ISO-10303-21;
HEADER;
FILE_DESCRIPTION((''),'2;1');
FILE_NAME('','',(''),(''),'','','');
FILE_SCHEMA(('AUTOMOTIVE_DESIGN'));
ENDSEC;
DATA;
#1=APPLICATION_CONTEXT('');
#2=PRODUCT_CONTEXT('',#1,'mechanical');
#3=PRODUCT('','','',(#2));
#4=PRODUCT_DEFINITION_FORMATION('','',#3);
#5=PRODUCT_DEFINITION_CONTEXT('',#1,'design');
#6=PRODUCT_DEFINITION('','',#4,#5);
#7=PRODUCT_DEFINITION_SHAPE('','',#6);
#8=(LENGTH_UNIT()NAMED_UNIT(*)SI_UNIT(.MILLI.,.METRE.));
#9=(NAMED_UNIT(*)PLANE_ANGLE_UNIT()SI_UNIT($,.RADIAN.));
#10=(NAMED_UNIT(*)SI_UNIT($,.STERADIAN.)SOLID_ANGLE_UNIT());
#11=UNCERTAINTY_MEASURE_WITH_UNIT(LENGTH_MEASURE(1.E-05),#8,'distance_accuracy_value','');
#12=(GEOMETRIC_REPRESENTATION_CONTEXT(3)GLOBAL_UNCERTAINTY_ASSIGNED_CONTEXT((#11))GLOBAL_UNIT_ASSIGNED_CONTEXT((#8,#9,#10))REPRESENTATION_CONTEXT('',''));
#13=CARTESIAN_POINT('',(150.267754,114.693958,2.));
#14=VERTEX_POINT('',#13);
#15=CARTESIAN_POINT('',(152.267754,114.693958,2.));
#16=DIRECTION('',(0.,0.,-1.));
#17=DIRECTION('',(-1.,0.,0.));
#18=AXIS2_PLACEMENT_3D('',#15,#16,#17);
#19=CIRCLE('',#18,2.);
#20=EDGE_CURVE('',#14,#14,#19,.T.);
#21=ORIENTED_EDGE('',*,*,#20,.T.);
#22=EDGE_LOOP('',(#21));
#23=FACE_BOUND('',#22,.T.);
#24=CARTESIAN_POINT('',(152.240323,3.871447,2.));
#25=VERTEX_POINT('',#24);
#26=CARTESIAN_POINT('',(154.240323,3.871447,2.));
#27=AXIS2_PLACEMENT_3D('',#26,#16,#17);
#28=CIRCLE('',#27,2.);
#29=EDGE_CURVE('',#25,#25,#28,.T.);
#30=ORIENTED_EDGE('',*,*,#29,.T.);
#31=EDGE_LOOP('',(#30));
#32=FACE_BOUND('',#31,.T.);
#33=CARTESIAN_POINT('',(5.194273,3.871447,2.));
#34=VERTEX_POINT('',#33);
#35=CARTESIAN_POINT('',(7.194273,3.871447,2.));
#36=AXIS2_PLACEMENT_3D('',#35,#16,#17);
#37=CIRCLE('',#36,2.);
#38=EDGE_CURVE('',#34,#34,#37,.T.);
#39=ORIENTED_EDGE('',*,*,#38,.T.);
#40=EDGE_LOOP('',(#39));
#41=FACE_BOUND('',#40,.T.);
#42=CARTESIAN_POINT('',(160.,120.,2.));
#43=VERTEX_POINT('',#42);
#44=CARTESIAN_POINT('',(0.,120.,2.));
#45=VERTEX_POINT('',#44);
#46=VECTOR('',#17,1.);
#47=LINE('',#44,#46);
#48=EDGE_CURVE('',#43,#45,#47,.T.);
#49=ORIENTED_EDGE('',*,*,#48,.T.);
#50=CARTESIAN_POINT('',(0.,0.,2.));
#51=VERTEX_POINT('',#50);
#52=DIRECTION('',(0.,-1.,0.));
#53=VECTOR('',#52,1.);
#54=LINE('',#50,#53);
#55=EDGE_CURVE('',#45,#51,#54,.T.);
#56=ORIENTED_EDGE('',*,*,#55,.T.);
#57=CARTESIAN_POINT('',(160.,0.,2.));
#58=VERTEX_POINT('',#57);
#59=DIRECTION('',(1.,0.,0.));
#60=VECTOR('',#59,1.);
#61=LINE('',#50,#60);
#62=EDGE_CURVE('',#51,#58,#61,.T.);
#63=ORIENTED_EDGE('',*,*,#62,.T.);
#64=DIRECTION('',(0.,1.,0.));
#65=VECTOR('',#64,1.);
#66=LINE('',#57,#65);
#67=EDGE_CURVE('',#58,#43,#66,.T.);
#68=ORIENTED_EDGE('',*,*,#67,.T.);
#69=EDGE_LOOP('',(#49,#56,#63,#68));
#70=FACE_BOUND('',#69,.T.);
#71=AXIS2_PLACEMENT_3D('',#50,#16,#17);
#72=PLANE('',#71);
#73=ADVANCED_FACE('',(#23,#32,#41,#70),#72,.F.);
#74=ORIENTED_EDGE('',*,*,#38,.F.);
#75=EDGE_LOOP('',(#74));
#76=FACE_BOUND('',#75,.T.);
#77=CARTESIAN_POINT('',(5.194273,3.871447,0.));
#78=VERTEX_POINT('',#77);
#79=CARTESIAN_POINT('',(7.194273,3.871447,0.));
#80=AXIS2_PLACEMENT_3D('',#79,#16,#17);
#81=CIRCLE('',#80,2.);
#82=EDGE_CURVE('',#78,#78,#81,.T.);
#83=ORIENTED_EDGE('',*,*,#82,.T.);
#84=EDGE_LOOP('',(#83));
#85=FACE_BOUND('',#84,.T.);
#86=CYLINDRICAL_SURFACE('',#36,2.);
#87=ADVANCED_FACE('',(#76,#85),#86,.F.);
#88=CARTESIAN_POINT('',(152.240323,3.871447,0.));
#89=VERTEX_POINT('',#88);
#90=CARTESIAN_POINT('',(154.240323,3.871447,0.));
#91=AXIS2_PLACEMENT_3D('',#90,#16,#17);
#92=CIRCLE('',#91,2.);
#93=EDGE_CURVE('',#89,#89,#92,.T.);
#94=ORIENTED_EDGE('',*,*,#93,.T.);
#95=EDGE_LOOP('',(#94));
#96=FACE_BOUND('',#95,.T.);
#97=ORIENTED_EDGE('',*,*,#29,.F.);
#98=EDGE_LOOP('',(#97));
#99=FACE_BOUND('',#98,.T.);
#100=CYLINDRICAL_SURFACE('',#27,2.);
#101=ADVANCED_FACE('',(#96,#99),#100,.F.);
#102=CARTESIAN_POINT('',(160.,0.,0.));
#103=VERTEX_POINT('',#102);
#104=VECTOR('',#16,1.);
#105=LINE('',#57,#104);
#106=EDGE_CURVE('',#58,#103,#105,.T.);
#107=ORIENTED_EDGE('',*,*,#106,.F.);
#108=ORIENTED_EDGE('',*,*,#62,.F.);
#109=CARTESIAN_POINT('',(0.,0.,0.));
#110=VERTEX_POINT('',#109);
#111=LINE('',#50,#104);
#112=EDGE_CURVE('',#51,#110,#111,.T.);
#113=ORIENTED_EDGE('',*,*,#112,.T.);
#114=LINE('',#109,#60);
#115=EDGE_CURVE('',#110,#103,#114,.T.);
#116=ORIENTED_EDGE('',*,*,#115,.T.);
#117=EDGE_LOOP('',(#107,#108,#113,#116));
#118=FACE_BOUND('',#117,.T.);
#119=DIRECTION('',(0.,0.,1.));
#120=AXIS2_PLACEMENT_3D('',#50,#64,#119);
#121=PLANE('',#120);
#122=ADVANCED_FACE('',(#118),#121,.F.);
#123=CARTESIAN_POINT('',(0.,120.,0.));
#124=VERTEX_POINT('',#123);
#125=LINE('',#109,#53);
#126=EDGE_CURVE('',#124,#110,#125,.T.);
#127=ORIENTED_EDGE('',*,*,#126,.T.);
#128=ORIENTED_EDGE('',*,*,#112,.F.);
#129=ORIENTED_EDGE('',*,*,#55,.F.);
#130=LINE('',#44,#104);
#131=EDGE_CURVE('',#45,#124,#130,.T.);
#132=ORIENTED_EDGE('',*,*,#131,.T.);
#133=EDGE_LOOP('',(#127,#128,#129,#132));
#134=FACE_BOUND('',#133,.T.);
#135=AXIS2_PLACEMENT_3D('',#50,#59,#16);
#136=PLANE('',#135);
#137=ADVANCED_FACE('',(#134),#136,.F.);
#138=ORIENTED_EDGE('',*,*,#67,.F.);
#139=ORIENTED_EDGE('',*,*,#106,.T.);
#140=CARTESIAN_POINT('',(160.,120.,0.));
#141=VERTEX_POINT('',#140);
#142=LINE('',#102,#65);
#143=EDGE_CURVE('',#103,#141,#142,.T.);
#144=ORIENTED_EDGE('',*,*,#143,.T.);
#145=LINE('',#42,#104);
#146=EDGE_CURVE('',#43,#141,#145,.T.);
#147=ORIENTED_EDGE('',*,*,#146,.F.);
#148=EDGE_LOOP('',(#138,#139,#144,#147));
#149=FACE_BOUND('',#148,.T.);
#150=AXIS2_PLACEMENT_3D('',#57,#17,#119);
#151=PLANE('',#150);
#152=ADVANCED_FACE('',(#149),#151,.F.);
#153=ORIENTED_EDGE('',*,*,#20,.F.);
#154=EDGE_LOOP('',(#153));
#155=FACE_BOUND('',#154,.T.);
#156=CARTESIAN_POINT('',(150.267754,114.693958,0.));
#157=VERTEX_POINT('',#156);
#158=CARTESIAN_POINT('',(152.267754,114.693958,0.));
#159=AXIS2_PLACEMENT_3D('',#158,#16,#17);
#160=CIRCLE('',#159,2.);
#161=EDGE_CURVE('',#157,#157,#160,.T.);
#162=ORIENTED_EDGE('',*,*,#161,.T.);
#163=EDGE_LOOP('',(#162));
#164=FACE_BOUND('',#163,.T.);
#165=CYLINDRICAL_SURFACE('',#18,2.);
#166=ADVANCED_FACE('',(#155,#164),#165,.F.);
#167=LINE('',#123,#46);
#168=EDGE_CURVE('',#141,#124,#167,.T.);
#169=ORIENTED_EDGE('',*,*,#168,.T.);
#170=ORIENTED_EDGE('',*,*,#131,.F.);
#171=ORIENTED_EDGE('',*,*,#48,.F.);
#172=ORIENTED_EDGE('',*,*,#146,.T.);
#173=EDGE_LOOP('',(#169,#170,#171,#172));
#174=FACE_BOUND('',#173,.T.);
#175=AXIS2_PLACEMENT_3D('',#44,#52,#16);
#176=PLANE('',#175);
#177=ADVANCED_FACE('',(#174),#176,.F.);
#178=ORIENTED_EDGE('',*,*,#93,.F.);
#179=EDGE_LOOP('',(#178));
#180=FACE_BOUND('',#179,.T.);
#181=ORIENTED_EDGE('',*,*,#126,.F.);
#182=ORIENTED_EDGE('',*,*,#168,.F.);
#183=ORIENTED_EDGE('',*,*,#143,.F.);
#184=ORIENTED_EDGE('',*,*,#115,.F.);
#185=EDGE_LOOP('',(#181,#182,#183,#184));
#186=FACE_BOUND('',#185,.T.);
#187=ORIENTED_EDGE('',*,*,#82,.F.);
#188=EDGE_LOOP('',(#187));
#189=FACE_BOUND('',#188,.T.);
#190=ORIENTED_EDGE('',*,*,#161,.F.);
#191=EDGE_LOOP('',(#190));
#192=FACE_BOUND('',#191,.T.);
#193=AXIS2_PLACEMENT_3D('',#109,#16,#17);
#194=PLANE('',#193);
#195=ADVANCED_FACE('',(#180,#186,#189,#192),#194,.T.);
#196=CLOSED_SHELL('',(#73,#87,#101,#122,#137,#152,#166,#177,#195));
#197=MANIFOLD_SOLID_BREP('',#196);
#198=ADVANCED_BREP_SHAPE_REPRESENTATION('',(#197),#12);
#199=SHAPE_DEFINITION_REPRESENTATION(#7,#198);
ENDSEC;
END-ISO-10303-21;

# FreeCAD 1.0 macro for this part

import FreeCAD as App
import Part
import Sketcher

V = App.Vector
Q = App.Units.Quantity


def add_polygon(sketch, points):
    """Adds a closed chain of lines whose ends are joined by coincident constraints."""
    first, n = sketch.GeometryCount, len(points)
    for a, b in zip(points, points[1:] + points[:1]):
        sketch.addGeometry(Part.LineSegment(App.Vector(*a, 0), App.Vector(*b, 0)), False)
    for i in range(n):
        sketch.addConstraint(Sketcher.Constraint("Coincident", first + i, 2, first + (i + 1) % n, 1))

doc = App.newDocument("Part")
body = doc.addObject("PartDesign::Body", "Body")

# Sketch on XY plane
sketch1 = body.newObject("Sketcher::SketchObject", "Sketch")
sketch1.AttachmentSupport = (doc.getObject("XY_Plane"), [""])
sketch1.MapMode = "FlatFace"
add_polygon(sketch1, [(0, 120), (0, 0), (160, 0), (160, 120)])  # lines 0-3
sketch1.addConstraint([
    Sketcher.Constraint("Vertical", 0),
    Sketcher.Constraint("Horizontal", 1),
    Sketcher.Constraint("Vertical", 2),
    Sketcher.Constraint("Horizontal", 3),
    Sketcher.Constraint("Coincident", 0, 2, -1, 1),
    Sketcher.Constraint("DistanceX", 1, 1, 1, 2, Q("160 mm")),
    Sketcher.Constraint("DistanceY", 0, 2, 0, 1, Q("120 mm")),
])
pad1 = body.newObject("PartDesign::Pad", "Pad")
pad1.Profile = sketch1
pad1.Length = 2

# Sketch on XY plane
sketch2 = body.newObject("Sketcher::SketchObject", "Sketch001")
sketch2.AttachmentSupport = (doc.getObject("XY_Plane"), [""])
sketch2.MapMode = "FlatFace"
sketch2.addGeometry([
    Part.Circle(V(7.2, 3.9, 0), V(0, 0, 1), 2),
    Part.Circle(V(154.2, 3.9, 0), V(0, 0, 1), 2),
    Part.Circle(V(152.3, 114.7, 0), V(0, 0, 1), 2),
], False)
sketch2.addConstraint([
    Sketcher.Constraint("Equal", 0, 1),
    Sketcher.Constraint("Equal", 1, 2),
    Sketcher.Constraint("Horizontal", 0, 3, 1, 3),
    Sketcher.Constraint("Diameter", 0, Q("4 mm")),
    Sketcher.Constraint("DistanceX", 0, 3, 1, 3, Q("147.04605 mm")),
    Sketcher.Constraint("DistanceX", 2, 3, 1, 3, Q("1.972569 mm")),
    Sketcher.Constraint("DistanceY", 1, 3, 2, 3, Q("110.822511 mm")),
    Sketcher.Constraint("DistanceX", -1, 1, 0, 3, Q("7.194273 mm")),
    Sketcher.Constraint("DistanceY", -1, 1, 0, 3, Q("3.871447 mm")),
])
pocket1 = body.newObject("PartDesign::Pocket", "Pocket")
pocket1.Profile = sketch2
pocket1.Length = 2
pocket1.Reversed = True

doc.recompute()
